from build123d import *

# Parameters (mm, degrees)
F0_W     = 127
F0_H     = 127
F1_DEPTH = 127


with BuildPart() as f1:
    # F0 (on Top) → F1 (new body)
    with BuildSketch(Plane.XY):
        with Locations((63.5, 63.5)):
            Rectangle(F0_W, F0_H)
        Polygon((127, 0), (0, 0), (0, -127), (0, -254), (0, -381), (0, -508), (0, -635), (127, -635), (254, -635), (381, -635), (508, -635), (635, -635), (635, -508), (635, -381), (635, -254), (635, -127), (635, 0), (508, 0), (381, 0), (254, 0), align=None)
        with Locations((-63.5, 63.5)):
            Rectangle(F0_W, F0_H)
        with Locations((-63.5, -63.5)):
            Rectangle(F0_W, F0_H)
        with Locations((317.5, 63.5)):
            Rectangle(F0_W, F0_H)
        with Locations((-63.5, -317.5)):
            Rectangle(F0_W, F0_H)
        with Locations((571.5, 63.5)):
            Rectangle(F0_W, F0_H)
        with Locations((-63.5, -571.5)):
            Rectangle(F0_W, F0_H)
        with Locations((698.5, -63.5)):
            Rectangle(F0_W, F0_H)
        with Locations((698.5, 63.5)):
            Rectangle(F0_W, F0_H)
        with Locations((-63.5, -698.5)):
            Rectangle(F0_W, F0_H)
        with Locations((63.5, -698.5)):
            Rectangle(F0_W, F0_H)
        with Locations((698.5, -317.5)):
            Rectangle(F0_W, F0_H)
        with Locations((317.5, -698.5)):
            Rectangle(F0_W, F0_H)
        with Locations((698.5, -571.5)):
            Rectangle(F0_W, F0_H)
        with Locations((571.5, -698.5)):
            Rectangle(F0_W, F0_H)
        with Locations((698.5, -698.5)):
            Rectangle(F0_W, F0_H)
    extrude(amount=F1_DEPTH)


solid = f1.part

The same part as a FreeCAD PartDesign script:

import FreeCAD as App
import Part
import Sketcher
from FreeCAD import Vector
Q = App.Units.Quantity


def add_polygon(sketch, points):
    """Adds a closed chain of lines whose ends are joined by coincident constraints."""
    first, n = sketch.GeometryCount, len(points)
    for a, b in zip(points, points[1:] + points[:1]):
        sketch.addGeometry(Part.LineSegment(App.Vector(*a, 0), App.Vector(*b, 0)), False)
    for i in range(n):
        sketch.addConstraint(Sketcher.Constraint("Coincident", first + i, 2, first + (i + 1) % n, 1))

doc = App.newDocument("Part")
params = doc.addObject("Spreadsheet::Sheet", "Params")
for row, (alias, value) in enumerate([
    ("sketch1_width", "5 in"),
    ("pad1_length", "5 in"),
], start=1):
    params.set(f"A{row}", alias)
    params.set(f"B{row}", "=" + value)
    params.setAlias(f"B{row}", alias)

body = doc.addObject("PartDesign::Body", "Body")

sketch1 = body.newObject("Sketcher::SketchObject", "Sketch")
sketch1.AttachmentSupport = (doc.getObject("XY_Plane"), [""])
sketch1.MapMode = "FlatFace"
add_polygon(sketch1, [(0, -127), (0, -254), (-127, -254), (-127, -381), (0, -381), (0, -508), (-127, -508), (-127, -762), (127, -762), (127, -635), (254, -635), (254, -762), (381, -762), (381, -635), (508, -635), (508, -762), (762, -762), (762, -508), (635, -508), (635, -381), (762, -381), (762, -254), (635, -254), (635, -127), (762, -127), (762, 127), (508, 127), (508, 0), (381, 0), (381, 127), (254, 127), (254, 0), (127, 0), (127, 127), (-127, 127), (-127, -127)])
sketch1.addConstraint([
    Sketcher.Constraint("Vertical", 0),
    Sketcher.Constraint("Horizontal", 1),
    Sketcher.Constraint("Vertical", 2),
    Sketcher.Constraint("Horizontal", 3),
    Sketcher.Constraint("Vertical", 4),
    Sketcher.Constraint("Horizontal", 5),
    Sketcher.Constraint("Vertical", 6),
    Sketcher.Constraint("Horizontal", 7),
    Sketcher.Constraint("Vertical", 8),
    Sketcher.Constraint("Horizontal", 9),
    Sketcher.Constraint("Vertical", 10),
    Sketcher.Constraint("Horizontal", 11),
    Sketcher.Constraint("Vertical", 12),
    Sketcher.Constraint("Horizontal", 13),
    Sketcher.Constraint("Vertical", 14),
    Sketcher.Constraint("Horizontal", 15),
    Sketcher.Constraint("Vertical", 16),
    Sketcher.Constraint("Horizontal", 17),
    Sketcher.Constraint("Vertical", 18),
    Sketcher.Constraint("Horizontal", 19),
    Sketcher.Constraint("Vertical", 20),
    Sketcher.Constraint("Horizontal", 21),
    Sketcher.Constraint("Vertical", 22),
    Sketcher.Constraint("Horizontal", 23),
    Sketcher.Constraint("Vertical", 24),
    Sketcher.Constraint("Horizontal", 25),
    Sketcher.Constraint("Vertical", 26),
    Sketcher.Constraint("Horizontal", 27),
    Sketcher.Constraint("Vertical", 28),
    Sketcher.Constraint("Horizontal", 29),
    Sketcher.Constraint("Vertical", 30),
    Sketcher.Constraint("Horizontal", 31),
    Sketcher.Constraint("Vertical", 32),
    Sketcher.Constraint("Horizontal", 33),
    Sketcher.Constraint("Vertical", 34),
    Sketcher.Constraint("Horizontal", 35),
    Sketcher.Constraint("Symmetric", 32, 2, 34, 2, -1, 1),
    Sketcher.Constraint("PointOnObject", 0, 2, -2),
    Sketcher.Constraint("PointOnObject", 3, 2, -2),
    Sketcher.Constraint("PointOnObject", 26, 2, -1),
    Sketcher.Constraint("PointOnObject", 30, 2, -1),
    Sketcher.Constraint("Horizontal", 7, 2, 10, 2),
    Sketcher.Constraint("Horizontal", 9, 2, 12, 2),
    Sketcher.Constraint("Horizontal", 11, 2, 14, 2),
    Sketcher.Constraint("Horizontal", 5, 2, 16, 2),
    Sketcher.Constraint("Horizontal", 3, 2, 18, 2),
    Sketcher.Constraint("Horizontal", 1, 2, 20, 2),
    Sketcher.Constraint("Horizontal", 25, 2, 28, 2),
    Sketcher.Constraint("Horizontal", 29, 2, 32, 2),
    Sketcher.Constraint("Horizontal", 23, 2, 34, 2),
    Sketcher.Constraint("Vertical", 2, 2, 5, 2),
    Sketcher.Constraint("Vertical", 16, 2, 19, 2),
    Sketcher.Constraint("Vertical", 18, 2, 21, 2),
    Sketcher.Constraint("Vertical", 20, 2, 23, 2),
    Sketcher.Constraint("Vertical", 14, 2, 25, 2),
    Sketcher.Constraint("Vertical", 12, 2, 27, 2),
    Sketcher.Constraint("Vertical", 10, 2, 29, 2),
    Sketcher.Constraint("Vertical", 8, 2, 31, 2),
    Sketcher.Constraint("Vertical", 6, 2, 33, 2),
    Sketcher.Constraint("Equal", 5, 9),
    Sketcher.Constraint("Equal", 9, 11),
    Sketcher.Constraint("Equal", 11, 13),
    Sketcher.Constraint("Equal", 7, 15),
    Sketcher.Constraint("Equal", 13, 17),
    Sketcher.Constraint("Equal", 35, 0),
    Sketcher.Constraint("Equal", 0, 2),
    Sketcher.Constraint("Equal", 2, 4),
    Sketcher.Constraint("Equal", 33, 6),
    Sketcher.Constraint("Equal", 4, 8),
    Sketcher.Constraint("Equal", 16, 24),
    Sketcher.Constraint("DistanceX", 1, 2, 1, 1, Q("5 in")),
])
sketch1.setExpression("Constraints[106]", "Params.sketch1_width")
pad1 = body.newObject("PartDesign::Pad", "Pad")
pad1.Profile = sketch1
pad1.setExpression("Length", "Params.pad1_length")

doc.recompute()
